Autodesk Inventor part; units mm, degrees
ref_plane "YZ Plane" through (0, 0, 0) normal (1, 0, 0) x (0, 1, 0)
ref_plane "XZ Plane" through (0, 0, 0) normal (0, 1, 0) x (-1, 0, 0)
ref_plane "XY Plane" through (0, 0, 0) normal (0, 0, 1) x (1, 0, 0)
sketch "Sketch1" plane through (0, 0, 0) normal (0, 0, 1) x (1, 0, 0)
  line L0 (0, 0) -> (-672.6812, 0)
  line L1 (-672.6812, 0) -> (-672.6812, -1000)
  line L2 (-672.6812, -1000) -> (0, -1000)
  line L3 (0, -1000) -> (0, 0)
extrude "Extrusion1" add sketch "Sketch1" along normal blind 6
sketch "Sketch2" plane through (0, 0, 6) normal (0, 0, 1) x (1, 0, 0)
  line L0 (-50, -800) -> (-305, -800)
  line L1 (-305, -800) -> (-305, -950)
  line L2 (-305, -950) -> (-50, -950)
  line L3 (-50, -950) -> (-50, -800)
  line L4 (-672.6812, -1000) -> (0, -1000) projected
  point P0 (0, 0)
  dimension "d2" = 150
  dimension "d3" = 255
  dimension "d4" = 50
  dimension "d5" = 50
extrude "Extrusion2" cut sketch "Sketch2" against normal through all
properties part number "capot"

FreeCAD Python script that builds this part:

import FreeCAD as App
import Part
import Sketcher
from FreeCAD import Vector


def add_polygon(sketch, points):
    """Adds a closed chain of lines whose ends are joined by coincident constraints."""
    first, n = sketch.GeometryCount, len(points)
    for a, b in zip(points, points[1:] + points[:1]):
        sketch.addGeometry(Part.LineSegment(App.Vector(*a, 0), App.Vector(*b, 0)), False)
    for i in range(n):
        sketch.addConstraint(Sketcher.Constraint("Coincident", first + i, 2, first + (i + 1) % n, 1))

doc = App.newDocument("Part")
params = doc.addObject("Spreadsheet::Sheet", "Params")
for row, (alias, value) in enumerate([
    ("sketch1_height", "1000 mm"),
    ("pad1_length", "6 mm"),
    ("sketch2_width", "255 mm"),
    ("sketch2_height", "150 mm"),
], start=1):
    params.set(f"A{row}", alias)
    params.set(f"B{row}", "=" + value)
    params.setAlias(f"B{row}", alias)

body = doc.addObject("PartDesign::Body", "Body")

sketch1 = body.newObject("Sketcher::SketchObject", "Sketch")
sketch1.AttachmentSupport = (doc.getObject("XY_Plane"), [""])
sketch1.MapMode = "FlatFace"
add_polygon(sketch1, [(0, -1000), (0, 0), (-673, 0), (-673, -1000)])
sketch1.addConstraint(Sketcher.Constraint("Vertical", 0))
sketch1.addConstraint(Sketcher.Constraint("Horizontal", 1))
sketch1.addConstraint(Sketcher.Constraint("Vertical", 2))
sketch1.addConstraint(Sketcher.Constraint("Horizontal", 3))
sketch1.addConstraint(Sketcher.Constraint("Coincident", 0, 2, -1, 1))
sketch1.addConstraint(Sketcher.Constraint("DistanceY", 0, 1, 0, 2, 1000.0))
sketch1.addConstraint(Sketcher.Constraint("DistanceX", 1, 2, 1, 1, 672.6812))
sketch1.setExpression("Constraints[9]", "Params.sketch1_height")
pad1 = body.newObject("PartDesign::Pad", "Pad")
pad1.Profile = sketch1
pad1.setExpression("Length", "Params.pad1_length")

sketch2 = body.newObject("Sketcher::SketchObject", "Sketch001")
sketch2.AttachmentSupport = (doc.getObject("XY_Plane"), [""])
sketch2.MapMode = "FlatFace"
sketch2.AttachmentOffset = App.Placement(Vector(0, 0, 6), App.Rotation())
add_polygon(sketch2, [(-50, -950), (-50, -800), (-305, -800), (-305, -950)])
sketch2.addConstraint(Sketcher.Constraint("Vertical", 0))
sketch2.addConstraint(Sketcher.Constraint("Horizontal", 1))
sketch2.addConstraint(Sketcher.Constraint("Vertical", 2))
sketch2.addConstraint(Sketcher.Constraint("Horizontal", 3))
sketch2.addConstraint(Sketcher.Constraint("DistanceX", 1, 2, 1, 1, 255.0))
sketch2.addConstraint(Sketcher.Constraint("DistanceY", 0, 1, 0, 2, 150.0))
sketch2.addConstraint(Sketcher.Constraint("DistanceX", 0, 2, -1, 1, 50.0))
sketch2.addConstraint(Sketcher.Constraint("DistanceY", 0, 2, -1, 1, 800.0))
sketch2.setExpression("Constraints[8]", "Params.sketch2_width")
sketch2.setExpression("Constraints[9]", "Params.sketch2_height")
pocket1 = body.newObject("PartDesign::Pocket", "Pocket")
pocket1.Profile = sketch2
pocket1.Type = "ThroughAll"

doc.recompute()
